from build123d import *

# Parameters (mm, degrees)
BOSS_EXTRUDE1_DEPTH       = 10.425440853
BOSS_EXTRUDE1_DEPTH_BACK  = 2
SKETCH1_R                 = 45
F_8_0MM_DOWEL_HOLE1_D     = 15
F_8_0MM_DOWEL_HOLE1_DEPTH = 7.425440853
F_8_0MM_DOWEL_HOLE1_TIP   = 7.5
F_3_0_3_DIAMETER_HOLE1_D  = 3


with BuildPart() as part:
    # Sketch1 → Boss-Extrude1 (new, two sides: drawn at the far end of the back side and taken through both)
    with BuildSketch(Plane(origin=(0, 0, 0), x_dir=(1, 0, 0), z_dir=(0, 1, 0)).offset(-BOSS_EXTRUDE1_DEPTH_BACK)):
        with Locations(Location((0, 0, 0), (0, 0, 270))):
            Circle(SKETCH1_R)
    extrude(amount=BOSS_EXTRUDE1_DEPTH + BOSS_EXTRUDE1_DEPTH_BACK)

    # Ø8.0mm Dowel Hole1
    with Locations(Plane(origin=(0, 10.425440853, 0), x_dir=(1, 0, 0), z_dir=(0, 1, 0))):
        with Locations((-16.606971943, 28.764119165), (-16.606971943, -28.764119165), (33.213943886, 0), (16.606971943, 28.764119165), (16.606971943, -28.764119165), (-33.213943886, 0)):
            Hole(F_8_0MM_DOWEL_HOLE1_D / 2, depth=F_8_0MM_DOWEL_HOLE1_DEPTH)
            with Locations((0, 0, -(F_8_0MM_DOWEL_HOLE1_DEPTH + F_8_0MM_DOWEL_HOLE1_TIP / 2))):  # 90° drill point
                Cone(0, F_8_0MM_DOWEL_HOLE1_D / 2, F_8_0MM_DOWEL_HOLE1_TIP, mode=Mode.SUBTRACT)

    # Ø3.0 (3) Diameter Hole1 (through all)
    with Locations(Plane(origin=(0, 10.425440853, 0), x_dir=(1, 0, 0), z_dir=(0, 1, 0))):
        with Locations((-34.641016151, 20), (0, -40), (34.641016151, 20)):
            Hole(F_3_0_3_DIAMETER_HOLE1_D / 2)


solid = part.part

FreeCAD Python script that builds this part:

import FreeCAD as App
import Part
import Sketcher
from FreeCAD import Vector

doc = App.newDocument("Part")
body = doc.addObject("PartDesign::Body", "Body")

sketch1 = body.newObject("Sketcher::SketchObject", "Sketch")
sketch1.AttachmentSupport = (doc.getObject("XZ_Plane"), [""])
sketch1.MapMode = "FlatFace"
sketch1.addGeometry(Part.Circle(Vector(0, 0, 0), Vector(0, 0, 1), 45), False)
sketch1.addConstraint(Sketcher.Constraint("Coincident", 0, 3, -1, 1))
sketch1.addConstraint(Sketcher.Constraint("Diameter", 0, 90.0))
pad1 = body.newObject("PartDesign::Pad", "Pad")
pad1.Profile = sketch1
pad1.Type = "TwoLengths"
pad1.Length = 10.425441
pad1.Length2 = 2
pad1.Reversed = True

sketch2 = body.newObject("Sketcher::SketchObject", "Sketch001")
sketch2.AttachmentSupport = (doc.getObject("XZ_Plane"), [""])
sketch2.MapMode = "FlatFace"
sketch2.AttachmentOffset = App.Placement(Vector(0, 0, -10.425441), App.Rotation())
sketch2.addGeometry(Part.Circle(Vector(-16.606972, -28.764119, 0), Vector(0, 0, 1), 7.5), False)
sketch2.addGeometry(Part.Circle(Vector(-16.606972, 28.764119, 0), Vector(0, 0, 1), 7.5), False)
sketch2.addGeometry(Part.Circle(Vector(33.213944, 0, 0), Vector(0, 0, 1), 7.5), False)
sketch2.addGeometry(Part.Circle(Vector(16.606972, -28.764119, 0), Vector(0, 0, 1), 7.5), False)
sketch2.addGeometry(Part.Circle(Vector(16.606972, 28.764119, 0), Vector(0, 0, 1), 7.5), False)
sketch2.addGeometry(Part.Circle(Vector(-33.213944, 0, 0), Vector(0, 0, 1), 7.5), False)
sketch2.addConstraint(Sketcher.Constraint("Equal", 0, 1))
sketch2.addConstraint(Sketcher.Constraint("Equal", 1, 2))
sketch2.addConstraint(Sketcher.Constraint("Equal", 2, 3))
sketch2.addConstraint(Sketcher.Constraint("Equal", 3, 4))
sketch2.addConstraint(Sketcher.Constraint("Equal", 4, 5))
sketch2.addConstraint(Sketcher.Constraint("Symmetric", 1, 3, 3, 3, -1, 1))
sketch2.addConstraint(Sketcher.Constraint("Symmetric", 0, 3, 4, 3, -1, 1))
sketch2.addConstraint(Sketcher.Constraint("Symmetric", 2, 3, 5, 3, -1, 1))
sketch2.addConstraint(Sketcher.Constraint("Symmetric", 0, 3, 3, 3, -2))
sketch2.addConstraint(Sketcher.Constraint("PointOnObject", 2, 3, -1))
sketch2.addConstraint(Sketcher.Constraint("Diameter", 0, 15.0))
sketch2.addConstraint(Sketcher.Constraint("DistanceX", 0, 3, -1, 1, 16.606972))
sketch2.addConstraint(Sketcher.Constraint("DistanceY", 0, 3, -1, 1, 28.764119))
sketch2.addConstraint(Sketcher.Constraint("DistanceX", 3, 3, 2, 3, 16.606972))
doc.recompute()
hole = body.newObject("PartDesign::Hole", "Hole")
hole.Profile = sketch2
hole.ThreadType = "None"
hole.Diameter = 15
hole.DepthType = "Dimension"
hole.Depth = 7.425441
hole.DrillPoint = "Angled"
hole.DrillPointAngle = 90
hole.Reversed = True

sketch3 = body.newObject("Sketcher::SketchObject", "Sketch002")
sketch3.AttachmentSupport = (doc.getObject("XZ_Plane"), [""])
sketch3.MapMode = "FlatFace"
sketch3.AttachmentOffset = App.Placement(Vector(0, 0, -10.425441), App.Rotation())
sketch3.addGeometry(Part.Circle(Vector(-34.641016, -20, 0), Vector(0, 0, 1), 1.5), False)
sketch3.addGeometry(Part.Circle(Vector(0, 40, 0), Vector(0, 0, 1), 1.5), False)
sketch3.addGeometry(Part.Circle(Vector(34.641016, -20, 0), Vector(0, 0, 1), 1.5), False)
sketch3.addConstraint(Sketcher.Constraint("Equal", 0, 1))
sketch3.addConstraint(Sketcher.Constraint("Equal", 1, 2))
sketch3.addConstraint(Sketcher.Constraint("Symmetric", 0, 3, 2, 3, -2))
sketch3.addConstraint(Sketcher.Constraint("PointOnObject", 1, 3, -2))
sketch3.addConstraint(Sketcher.Constraint("Diameter", 0, 3.0))
sketch3.addConstraint(Sketcher.Constraint("DistanceY", 0, 3, -1, 1, 20.0))
sketch3.addConstraint(Sketcher.Constraint("DistanceY", -1, 1, 1, 3, 40.0))
sketch3.addConstraint(Sketcher.Constraint("DistanceX", 0, 3, -1, 1, 34.641016))
doc.recompute()
hole2 = body.newObject("PartDesign::Hole", "Hole001")
hole2.Profile = sketch3
hole2.ThreadType = "None"
hole2.Diameter = 3
hole2.DepthType = "ThroughAll"
hole2.Reversed = True

doc.recompute()
